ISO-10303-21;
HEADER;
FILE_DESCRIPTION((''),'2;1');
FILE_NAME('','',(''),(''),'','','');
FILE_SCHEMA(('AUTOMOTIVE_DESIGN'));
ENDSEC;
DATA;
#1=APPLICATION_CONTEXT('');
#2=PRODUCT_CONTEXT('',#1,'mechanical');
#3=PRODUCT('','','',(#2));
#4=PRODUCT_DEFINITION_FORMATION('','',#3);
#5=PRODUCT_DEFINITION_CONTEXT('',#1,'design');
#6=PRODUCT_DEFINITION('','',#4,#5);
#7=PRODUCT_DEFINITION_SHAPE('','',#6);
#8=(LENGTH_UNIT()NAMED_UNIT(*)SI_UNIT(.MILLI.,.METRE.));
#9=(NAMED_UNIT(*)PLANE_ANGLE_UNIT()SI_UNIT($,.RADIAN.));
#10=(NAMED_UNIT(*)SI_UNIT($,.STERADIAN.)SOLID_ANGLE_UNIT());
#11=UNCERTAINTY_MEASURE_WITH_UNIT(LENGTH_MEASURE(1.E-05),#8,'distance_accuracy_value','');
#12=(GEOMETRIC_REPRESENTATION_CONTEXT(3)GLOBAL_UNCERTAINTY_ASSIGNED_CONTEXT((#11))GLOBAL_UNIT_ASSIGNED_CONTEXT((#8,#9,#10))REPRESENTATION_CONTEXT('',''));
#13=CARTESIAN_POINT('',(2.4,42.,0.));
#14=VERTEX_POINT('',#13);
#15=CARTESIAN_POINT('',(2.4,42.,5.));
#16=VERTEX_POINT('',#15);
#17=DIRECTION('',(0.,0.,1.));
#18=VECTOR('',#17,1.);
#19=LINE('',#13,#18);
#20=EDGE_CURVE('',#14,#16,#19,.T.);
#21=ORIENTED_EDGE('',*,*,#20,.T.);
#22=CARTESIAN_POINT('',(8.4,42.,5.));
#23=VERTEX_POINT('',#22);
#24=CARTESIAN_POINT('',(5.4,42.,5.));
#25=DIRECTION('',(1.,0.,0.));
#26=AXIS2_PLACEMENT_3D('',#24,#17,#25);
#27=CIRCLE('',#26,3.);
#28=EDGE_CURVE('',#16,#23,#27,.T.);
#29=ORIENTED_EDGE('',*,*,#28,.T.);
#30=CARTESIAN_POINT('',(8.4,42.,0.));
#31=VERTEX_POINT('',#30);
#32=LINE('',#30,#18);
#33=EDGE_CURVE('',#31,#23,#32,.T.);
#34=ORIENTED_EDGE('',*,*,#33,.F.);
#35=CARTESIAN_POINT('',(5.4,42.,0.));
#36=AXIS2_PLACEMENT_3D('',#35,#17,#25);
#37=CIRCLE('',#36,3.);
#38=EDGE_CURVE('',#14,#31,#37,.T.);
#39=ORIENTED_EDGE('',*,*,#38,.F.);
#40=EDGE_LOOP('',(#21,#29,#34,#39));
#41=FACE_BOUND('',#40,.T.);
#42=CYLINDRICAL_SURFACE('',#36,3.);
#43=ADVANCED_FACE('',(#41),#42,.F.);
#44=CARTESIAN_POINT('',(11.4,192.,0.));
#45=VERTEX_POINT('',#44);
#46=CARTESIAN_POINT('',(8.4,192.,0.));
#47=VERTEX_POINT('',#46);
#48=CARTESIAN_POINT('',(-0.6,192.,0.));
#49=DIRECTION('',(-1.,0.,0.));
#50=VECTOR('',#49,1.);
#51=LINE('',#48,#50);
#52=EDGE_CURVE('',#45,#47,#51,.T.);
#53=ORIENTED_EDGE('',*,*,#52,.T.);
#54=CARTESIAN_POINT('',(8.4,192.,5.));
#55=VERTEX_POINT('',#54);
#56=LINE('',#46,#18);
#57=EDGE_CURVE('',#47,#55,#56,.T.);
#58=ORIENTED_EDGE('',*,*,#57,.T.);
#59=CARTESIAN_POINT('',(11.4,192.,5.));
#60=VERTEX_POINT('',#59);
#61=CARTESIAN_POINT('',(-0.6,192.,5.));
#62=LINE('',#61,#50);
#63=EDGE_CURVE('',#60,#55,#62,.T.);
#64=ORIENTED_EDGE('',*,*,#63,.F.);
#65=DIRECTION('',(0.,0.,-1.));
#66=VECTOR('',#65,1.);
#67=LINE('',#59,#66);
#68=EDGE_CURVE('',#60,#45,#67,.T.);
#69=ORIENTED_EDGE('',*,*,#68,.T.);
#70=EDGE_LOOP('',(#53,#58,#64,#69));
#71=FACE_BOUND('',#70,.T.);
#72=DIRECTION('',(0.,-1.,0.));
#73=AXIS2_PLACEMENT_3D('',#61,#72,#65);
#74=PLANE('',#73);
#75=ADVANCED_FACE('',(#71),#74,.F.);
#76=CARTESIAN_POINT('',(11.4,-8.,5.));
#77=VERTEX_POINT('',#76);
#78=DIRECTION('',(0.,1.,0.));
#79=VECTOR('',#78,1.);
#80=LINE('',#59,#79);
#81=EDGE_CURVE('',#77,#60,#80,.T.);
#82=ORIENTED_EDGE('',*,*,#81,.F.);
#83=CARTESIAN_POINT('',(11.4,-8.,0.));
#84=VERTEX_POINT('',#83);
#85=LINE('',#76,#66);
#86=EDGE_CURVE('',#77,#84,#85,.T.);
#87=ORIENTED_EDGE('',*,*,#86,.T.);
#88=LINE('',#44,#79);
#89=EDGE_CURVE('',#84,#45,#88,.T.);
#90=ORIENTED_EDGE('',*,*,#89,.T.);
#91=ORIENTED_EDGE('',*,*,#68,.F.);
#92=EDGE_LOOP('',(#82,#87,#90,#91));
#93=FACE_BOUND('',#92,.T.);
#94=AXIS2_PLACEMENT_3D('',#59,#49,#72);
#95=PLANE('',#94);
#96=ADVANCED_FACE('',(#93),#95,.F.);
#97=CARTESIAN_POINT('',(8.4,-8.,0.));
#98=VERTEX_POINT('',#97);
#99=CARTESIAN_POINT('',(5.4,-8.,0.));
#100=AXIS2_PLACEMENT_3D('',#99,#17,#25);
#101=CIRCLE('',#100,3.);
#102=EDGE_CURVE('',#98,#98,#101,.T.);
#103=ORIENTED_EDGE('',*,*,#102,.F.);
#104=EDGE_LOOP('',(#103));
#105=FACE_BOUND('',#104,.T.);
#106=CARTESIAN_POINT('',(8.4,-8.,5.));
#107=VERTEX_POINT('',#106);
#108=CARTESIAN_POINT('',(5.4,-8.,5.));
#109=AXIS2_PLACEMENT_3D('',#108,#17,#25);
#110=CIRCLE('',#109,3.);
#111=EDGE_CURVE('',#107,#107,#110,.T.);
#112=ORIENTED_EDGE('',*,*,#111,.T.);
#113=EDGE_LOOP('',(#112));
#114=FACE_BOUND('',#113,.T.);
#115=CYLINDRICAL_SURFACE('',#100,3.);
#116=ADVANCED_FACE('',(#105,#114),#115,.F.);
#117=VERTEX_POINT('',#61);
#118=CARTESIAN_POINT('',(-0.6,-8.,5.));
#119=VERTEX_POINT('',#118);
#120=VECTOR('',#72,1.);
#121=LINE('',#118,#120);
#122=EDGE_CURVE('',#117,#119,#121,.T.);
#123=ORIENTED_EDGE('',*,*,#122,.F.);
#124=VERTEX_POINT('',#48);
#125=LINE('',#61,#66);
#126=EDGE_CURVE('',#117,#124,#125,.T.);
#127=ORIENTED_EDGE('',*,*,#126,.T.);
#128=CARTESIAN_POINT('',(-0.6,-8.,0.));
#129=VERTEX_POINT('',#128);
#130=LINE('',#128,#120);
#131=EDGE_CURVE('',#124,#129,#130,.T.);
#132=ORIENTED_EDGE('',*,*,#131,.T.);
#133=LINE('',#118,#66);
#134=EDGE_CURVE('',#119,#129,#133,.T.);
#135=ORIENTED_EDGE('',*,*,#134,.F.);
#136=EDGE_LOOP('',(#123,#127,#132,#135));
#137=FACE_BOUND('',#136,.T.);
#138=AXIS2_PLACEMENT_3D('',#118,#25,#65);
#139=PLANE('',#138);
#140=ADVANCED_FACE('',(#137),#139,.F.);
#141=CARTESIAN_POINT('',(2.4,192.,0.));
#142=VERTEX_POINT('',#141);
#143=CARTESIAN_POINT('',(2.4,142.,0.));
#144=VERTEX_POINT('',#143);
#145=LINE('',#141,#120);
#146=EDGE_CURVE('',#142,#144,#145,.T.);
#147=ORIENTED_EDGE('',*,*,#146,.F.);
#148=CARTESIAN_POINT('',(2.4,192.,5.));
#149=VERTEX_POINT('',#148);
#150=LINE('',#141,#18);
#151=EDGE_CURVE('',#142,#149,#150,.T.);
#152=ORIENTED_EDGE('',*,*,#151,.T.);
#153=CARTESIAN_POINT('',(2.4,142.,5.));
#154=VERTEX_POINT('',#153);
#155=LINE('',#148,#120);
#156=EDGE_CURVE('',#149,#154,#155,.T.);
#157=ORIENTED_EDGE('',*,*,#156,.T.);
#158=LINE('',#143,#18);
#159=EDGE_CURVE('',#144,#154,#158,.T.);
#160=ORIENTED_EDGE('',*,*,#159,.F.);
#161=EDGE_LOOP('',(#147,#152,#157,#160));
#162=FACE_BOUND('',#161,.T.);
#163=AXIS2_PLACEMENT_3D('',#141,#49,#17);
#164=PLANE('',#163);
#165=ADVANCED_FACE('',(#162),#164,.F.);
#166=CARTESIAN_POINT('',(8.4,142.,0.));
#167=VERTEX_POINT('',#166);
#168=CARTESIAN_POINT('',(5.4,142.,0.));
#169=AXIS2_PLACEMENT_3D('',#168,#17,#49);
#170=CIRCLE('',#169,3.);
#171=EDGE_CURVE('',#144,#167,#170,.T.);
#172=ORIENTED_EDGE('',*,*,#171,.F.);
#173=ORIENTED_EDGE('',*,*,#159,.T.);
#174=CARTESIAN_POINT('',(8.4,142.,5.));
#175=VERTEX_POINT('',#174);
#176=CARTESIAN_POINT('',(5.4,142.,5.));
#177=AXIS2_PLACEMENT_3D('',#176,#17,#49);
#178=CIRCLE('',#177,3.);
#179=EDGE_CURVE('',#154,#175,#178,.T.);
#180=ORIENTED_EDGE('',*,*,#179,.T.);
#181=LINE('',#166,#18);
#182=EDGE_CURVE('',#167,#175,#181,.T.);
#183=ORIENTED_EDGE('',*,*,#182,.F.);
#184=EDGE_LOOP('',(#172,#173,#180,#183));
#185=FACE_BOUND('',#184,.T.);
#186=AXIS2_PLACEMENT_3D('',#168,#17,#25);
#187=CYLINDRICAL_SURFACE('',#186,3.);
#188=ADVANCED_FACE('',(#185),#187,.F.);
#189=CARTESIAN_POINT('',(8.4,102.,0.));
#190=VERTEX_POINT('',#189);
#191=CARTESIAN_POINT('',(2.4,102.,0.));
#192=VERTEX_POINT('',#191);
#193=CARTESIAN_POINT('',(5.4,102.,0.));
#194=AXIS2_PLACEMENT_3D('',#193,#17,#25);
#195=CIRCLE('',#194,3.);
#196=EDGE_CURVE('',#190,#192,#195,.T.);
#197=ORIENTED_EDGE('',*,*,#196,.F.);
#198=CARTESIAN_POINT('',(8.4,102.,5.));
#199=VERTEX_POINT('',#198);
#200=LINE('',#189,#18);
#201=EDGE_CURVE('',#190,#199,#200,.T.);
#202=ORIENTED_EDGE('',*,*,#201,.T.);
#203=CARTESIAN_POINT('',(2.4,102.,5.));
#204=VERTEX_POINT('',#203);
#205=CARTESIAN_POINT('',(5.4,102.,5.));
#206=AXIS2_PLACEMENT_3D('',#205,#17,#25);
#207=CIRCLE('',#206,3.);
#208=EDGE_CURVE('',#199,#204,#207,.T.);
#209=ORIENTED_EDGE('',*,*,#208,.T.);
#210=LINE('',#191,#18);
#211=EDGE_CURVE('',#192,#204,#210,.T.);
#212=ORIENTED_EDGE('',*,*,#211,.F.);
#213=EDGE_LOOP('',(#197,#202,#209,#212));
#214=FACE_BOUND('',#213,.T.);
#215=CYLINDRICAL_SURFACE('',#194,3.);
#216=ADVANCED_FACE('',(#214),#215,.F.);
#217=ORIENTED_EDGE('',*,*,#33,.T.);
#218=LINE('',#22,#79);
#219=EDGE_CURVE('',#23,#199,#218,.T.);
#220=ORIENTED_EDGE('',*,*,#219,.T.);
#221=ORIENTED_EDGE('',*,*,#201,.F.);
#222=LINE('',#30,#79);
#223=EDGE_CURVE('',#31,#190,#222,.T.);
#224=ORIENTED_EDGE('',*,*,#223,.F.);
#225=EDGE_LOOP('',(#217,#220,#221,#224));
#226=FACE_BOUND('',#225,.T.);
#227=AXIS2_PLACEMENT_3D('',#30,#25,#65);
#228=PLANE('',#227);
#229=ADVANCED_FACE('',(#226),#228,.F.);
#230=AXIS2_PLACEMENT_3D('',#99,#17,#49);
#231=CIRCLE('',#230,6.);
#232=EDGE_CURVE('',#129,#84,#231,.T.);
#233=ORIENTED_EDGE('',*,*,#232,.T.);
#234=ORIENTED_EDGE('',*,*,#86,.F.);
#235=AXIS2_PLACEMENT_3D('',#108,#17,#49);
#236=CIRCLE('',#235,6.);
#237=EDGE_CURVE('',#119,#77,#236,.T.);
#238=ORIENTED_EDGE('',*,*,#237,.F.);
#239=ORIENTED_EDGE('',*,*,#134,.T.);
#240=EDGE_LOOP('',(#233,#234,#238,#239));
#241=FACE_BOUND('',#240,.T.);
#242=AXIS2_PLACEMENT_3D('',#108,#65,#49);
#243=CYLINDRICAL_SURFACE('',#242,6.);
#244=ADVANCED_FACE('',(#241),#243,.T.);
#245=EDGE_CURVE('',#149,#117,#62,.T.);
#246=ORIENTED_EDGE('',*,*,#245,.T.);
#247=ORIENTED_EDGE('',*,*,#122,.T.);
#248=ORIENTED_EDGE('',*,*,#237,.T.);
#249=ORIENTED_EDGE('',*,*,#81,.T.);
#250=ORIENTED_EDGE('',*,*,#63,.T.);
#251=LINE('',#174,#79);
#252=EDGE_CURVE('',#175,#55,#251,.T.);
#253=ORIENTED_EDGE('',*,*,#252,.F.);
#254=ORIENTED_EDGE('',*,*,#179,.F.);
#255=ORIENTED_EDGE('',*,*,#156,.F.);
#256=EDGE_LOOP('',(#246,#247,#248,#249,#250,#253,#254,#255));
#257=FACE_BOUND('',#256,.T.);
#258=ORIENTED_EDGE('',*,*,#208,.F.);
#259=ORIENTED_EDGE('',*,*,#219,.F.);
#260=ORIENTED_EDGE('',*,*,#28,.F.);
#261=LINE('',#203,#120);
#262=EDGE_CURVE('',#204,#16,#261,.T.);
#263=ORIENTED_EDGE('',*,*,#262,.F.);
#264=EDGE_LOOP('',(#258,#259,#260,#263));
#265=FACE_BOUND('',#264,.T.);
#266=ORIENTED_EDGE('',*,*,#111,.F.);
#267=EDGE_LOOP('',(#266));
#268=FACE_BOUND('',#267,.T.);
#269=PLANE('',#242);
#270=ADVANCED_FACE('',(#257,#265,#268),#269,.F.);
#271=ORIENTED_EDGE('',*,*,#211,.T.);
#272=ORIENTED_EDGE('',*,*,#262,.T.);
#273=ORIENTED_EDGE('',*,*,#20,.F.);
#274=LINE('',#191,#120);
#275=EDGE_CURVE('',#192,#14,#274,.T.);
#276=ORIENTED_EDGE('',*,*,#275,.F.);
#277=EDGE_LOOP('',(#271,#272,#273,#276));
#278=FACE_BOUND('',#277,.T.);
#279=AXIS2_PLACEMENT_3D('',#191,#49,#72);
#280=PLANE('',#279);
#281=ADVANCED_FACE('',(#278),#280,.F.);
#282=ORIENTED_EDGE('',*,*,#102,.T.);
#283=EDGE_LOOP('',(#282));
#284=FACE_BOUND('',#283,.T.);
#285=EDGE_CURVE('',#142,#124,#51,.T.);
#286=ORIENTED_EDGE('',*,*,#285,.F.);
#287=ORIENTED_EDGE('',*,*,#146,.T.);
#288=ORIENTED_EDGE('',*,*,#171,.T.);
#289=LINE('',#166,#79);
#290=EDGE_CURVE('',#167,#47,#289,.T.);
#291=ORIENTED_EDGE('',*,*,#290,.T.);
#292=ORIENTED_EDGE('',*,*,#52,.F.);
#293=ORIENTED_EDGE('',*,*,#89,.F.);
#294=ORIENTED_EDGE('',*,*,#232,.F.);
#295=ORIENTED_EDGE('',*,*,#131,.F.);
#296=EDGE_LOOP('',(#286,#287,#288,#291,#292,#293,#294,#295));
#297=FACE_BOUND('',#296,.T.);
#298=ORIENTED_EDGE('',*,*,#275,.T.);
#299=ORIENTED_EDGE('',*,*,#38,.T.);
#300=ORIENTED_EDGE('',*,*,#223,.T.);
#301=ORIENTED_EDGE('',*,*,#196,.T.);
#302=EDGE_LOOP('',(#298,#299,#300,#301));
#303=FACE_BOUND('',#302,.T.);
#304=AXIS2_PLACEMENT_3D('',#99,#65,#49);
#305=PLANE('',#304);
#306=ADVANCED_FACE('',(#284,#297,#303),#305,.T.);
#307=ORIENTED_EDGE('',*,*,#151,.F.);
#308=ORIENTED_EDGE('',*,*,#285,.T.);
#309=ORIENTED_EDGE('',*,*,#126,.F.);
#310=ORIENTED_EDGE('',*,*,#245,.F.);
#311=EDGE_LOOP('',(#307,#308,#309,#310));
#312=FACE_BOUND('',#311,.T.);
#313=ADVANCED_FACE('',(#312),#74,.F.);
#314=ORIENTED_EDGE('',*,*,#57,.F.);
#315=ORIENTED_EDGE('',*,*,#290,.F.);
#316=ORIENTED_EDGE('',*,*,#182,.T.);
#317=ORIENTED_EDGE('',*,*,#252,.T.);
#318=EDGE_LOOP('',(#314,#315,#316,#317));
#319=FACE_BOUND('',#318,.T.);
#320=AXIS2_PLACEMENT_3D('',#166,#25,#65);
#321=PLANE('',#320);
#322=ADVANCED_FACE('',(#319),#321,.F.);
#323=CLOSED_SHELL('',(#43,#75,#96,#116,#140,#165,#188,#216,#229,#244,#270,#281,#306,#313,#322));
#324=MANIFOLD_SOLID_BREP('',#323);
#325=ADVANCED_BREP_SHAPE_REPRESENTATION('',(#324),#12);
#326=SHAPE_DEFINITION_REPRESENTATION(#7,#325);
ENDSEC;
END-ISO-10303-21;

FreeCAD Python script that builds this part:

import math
import FreeCAD as App
import Part
import Sketcher

V = App.Vector
Q = App.Units.Quantity

doc = App.newDocument("Part")
body = doc.addObject("PartDesign::Body", "Body")

sketch1 = doc.addObject("Sketcher::SketchObject", "Sketch")
body.addObject(sketch1)
sketch1.AttachmentSupport = (doc.XY_Plane, [""])
sketch1.MapMode = "FlatFace"
sketch1.addGeometry(Part.LineSegment(V(-1, 192, 0), V(-1, -8, 0)), False)
sketch1.addGeometry(Part.ArcOfCircle(Part.Circle(V(5, -8, 0), V(0, 0, 1), 6), math.radians(180), math.radians(360)), False)
sketch1.addGeometry(Part.LineSegment(V(11, -8, 0), V(11, 192, 0)), False)
sketch1.addGeometry(Part.LineSegment(V(11, 192, 0), V(-1, 192, 0)), False)
sketch1.addConstraint(Sketcher.Constraint("Tangent", 0, 2, 1, 1))
sketch1.addConstraint(Sketcher.Constraint("Tangent", 1, 2, 2, 1))
sketch1.addConstraint(Sketcher.Constraint("Coincident", 2, 2, 3, 1))
sketch1.addConstraint(Sketcher.Constraint("Coincident", 3, 2, 0, 1))
sketch1.addConstraint(Sketcher.Constraint("Vertical", 0))
sketch1.addConstraint(Sketcher.Constraint("Vertical", 2))
sketch1.addConstraint(Sketcher.Constraint("Horizontal", 3))
sketch1.addConstraint(Sketcher.Constraint("Radius", 1, Q("6 mm")))
sketch1.addConstraint(Sketcher.Constraint("DistanceY", 0, 2, 0, 1, Q("200 mm")))
sketch1.addConstraint(Sketcher.Constraint("DistanceY", 1, 3, -1, 1, Q("8 mm")))
sketch1.addConstraint(Sketcher.Constraint("DistanceX", -1, 1, 1, 3, Q("5.4 mm")))
pad1 = doc.addObject("PartDesign::Pad", "Pad")
body.addObject(pad1)
pad1.Profile = sketch1
pad1.Length = 5

sketch2 = doc.addObject("Sketcher::SketchObject", "Sketch001")
body.addObject(sketch2)
sketch2.AttachmentSupport = (doc.XY_Plane, [""])
sketch2.MapMode = "FlatFace"
sketch2.AttachmentOffset = App.Placement(V(0, 0, 5), App.Rotation())
sketch2.addGeometry(Part.Circle(V(5.4, -8, 0), V(0, 0, 1), 3), False)
sketch2.addConstraint(Sketcher.Constraint("Diameter", 0, Q("6 mm")))
sketch2.addConstraint(Sketcher.Constraint("DistanceY", 0, 3, -1, 1, Q("8 mm")))
sketch2.addConstraint(Sketcher.Constraint("DistanceX", -1, 1, 0, 3, Q("5.4 mm")))
pocket1 = doc.addObject("PartDesign::Pocket", "Pocket")
body.addObject(pocket1)
pocket1.Profile = sketch2
pocket1.Length = 5

sketch3 = doc.addObject("Sketcher::SketchObject", "Sketch002")
body.addObject(sketch3)
sketch3.AttachmentSupport = (doc.XY_Plane, [""])
sketch3.MapMode = "FlatFace"
sketch3.AttachmentOffset = App.Placement(V(0, 0, 5), App.Rotation())
sketch3.addGeometry(Part.LineSegment(V(2.4, 102, 0), V(2.4, 42, 0)), False)
sketch3.addGeometry(Part.ArcOfCircle(Part.Circle(V(5.4, 42, 0), V(0, 0, 1), 3), math.radians(180), math.radians(360)), False)
sketch3.addGeometry(Part.LineSegment(V(8.4, 42, 0), V(8.4, 102, 0)), False)
sketch3.addGeometry(Part.ArcOfCircle(Part.Circle(V(5.4, 102, 0), V(0, 0, 1), 3), math.radians(0), math.radians(180)), False)
sketch3.addConstraint(Sketcher.Constraint("Tangent", 0, 2, 1, 1))
sketch3.addConstraint(Sketcher.Constraint("Tangent", 1, 2, 2, 1))
sketch3.addConstraint(Sketcher.Constraint("Tangent", 2, 2, 3, 1))
sketch3.addConstraint(Sketcher.Constraint("Tangent", 3, 2, 0, 1))
sketch3.addConstraint(Sketcher.Constraint("Vertical", 0))
sketch3.addConstraint(Sketcher.Constraint("Vertical", 2))
sketch3.addConstraint(Sketcher.Constraint("Radius", 1, Q("3 mm")))
sketch3.addConstraint(Sketcher.Constraint("DistanceY", 0, 2, 0, 1, Q("60 mm")))
sketch3.addConstraint(Sketcher.Constraint("DistanceY", -1, 1, 1, 3, Q("42 mm")))
sketch3.addConstraint(Sketcher.Constraint("DistanceX", -1, 1, 1, 3, Q("5.4 mm")))
pocket2 = doc.addObject("PartDesign::Pocket", "Pocket001")
body.addObject(pocket2)
pocket2.Profile = sketch3
pocket2.Length = 5

sketch4 = doc.addObject("Sketcher::SketchObject", "Sketch003")
body.addObject(sketch4)
sketch4.AttachmentSupport = (doc.XY_Plane, [""])
sketch4.MapMode = "FlatFace"
sketch4.AttachmentOffset = App.Placement(V(0, 0, 5), App.Rotation())
sketch4.addGeometry(Part.LineSegment(V(2.4, 192, 0), V(2.4, 142, 0)), False)
sketch4.addGeometry(Part.ArcOfCircle(Part.Circle(V(5.4, 142, 0), V(0, 0, 1), 3), math.radians(180), math.radians(360)), False)
sketch4.addGeometry(Part.LineSegment(V(8.4, 142, 0), V(8.4, 192, 0)), False)
sketch4.addGeometry(Part.LineSegment(V(8.4, 192, 0), V(2.4, 192, 0)), False)
sketch4.addConstraint(Sketcher.Constraint("Tangent", 0, 2, 1, 1))
sketch4.addConstraint(Sketcher.Constraint("Tangent", 1, 2, 2, 1))
sketch4.addConstraint(Sketcher.Constraint("Coincident", 2, 2, 3, 1))
sketch4.addConstraint(Sketcher.Constraint("Coincident", 3, 2, 0, 1))
sketch4.addConstraint(Sketcher.Constraint("Vertical", 0))
sketch4.addConstraint(Sketcher.Constraint("Vertical", 2))
sketch4.addConstraint(Sketcher.Constraint("Horizontal", 3))
sketch4.addConstraint(Sketcher.Constraint("Radius", 1, Q("3 mm")))
sketch4.addConstraint(Sketcher.Constraint("DistanceY", 0, 2, 0, 1, Q("50 mm")))
sketch4.addConstraint(Sketcher.Constraint("DistanceY", -1, 1, 1, 3, Q("142 mm")))
sketch4.addConstraint(Sketcher.Constraint("DistanceX", -1, 1, 1, 3, Q("5.4 mm")))
pocket3 = doc.addObject("PartDesign::Pocket", "Pocket002")
body.addObject(pocket3)
pocket3.Profile = sketch4
pocket3.Length = 5

doc.recompute()
